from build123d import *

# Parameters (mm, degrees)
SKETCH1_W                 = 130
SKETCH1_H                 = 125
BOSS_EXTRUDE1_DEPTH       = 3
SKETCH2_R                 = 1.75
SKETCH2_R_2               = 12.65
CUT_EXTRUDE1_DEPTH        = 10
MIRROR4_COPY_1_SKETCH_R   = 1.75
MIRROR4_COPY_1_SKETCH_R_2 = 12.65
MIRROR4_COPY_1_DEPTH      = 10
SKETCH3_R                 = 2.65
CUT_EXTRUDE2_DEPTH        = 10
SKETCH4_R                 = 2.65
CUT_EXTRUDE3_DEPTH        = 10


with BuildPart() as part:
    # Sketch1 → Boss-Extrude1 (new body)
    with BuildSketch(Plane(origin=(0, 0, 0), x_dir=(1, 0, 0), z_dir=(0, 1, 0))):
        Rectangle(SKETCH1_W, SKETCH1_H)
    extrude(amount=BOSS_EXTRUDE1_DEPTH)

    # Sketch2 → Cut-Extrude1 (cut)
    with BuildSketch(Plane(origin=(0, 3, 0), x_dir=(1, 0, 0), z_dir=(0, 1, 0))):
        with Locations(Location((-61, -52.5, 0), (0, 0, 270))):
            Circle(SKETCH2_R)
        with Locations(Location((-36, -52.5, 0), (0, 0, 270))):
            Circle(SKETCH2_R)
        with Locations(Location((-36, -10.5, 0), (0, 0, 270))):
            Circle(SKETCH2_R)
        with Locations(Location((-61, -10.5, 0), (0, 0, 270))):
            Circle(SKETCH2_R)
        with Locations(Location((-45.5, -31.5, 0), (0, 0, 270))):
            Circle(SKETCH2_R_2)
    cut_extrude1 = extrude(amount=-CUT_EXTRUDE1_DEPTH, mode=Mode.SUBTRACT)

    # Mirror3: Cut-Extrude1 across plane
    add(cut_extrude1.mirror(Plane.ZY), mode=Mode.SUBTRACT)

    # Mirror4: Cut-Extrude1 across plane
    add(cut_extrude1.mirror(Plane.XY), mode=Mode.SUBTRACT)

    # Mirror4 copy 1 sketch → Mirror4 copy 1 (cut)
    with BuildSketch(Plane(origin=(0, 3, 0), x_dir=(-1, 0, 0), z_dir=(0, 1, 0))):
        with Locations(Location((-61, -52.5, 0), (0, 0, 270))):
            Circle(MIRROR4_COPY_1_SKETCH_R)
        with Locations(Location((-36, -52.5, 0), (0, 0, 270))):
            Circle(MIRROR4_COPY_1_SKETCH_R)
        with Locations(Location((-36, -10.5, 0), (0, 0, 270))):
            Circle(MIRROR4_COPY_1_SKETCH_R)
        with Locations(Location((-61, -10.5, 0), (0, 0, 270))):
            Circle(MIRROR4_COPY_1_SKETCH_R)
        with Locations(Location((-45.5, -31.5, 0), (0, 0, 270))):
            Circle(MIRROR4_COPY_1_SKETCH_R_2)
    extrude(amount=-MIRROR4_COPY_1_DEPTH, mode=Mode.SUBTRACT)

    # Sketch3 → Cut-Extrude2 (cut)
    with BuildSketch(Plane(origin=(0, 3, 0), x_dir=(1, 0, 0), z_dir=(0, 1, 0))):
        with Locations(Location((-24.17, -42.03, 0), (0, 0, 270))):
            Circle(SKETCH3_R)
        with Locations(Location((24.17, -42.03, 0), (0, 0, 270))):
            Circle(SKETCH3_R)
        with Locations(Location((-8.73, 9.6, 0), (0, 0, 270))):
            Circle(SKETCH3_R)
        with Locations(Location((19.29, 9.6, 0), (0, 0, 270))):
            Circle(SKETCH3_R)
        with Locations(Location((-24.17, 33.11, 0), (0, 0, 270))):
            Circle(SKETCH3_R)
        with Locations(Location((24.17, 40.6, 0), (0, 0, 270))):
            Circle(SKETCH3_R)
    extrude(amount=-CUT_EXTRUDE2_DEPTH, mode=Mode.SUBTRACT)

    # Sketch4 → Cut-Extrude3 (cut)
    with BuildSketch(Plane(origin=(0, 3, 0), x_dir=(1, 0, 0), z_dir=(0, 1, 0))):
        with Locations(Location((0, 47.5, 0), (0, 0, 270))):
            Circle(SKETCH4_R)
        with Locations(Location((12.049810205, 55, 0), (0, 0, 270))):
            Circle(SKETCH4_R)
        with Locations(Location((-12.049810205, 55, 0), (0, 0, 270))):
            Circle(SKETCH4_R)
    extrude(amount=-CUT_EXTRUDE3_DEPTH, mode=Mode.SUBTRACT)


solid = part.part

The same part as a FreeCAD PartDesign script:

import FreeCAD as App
import Part
import Sketcher
from FreeCAD import Vector
Q = App.Units.Quantity


def add_polygon(sketch, points):
    """Adds a closed chain of lines whose ends are joined by coincident constraints."""
    first, n = sketch.GeometryCount, len(points)
    for a, b in zip(points, points[1:] + points[:1]):
        sketch.addGeometry(Part.LineSegment(App.Vector(*a, 0), App.Vector(*b, 0)), False)
    for i in range(n):
        sketch.addConstraint(Sketcher.Constraint("Coincident", first + i, 2, first + (i + 1) % n, 1))

doc = App.newDocument("Part")
body = doc.addObject("PartDesign::Body", "Body")

sketch1 = body.newObject("Sketcher::SketchObject", "Sketch")
sketch1.AttachmentSupport = (doc.getObject("XZ_Plane"), [""])
sketch1.MapMode = "FlatFace"
add_polygon(sketch1, [(-65, -62), (-65, 62), (65, 62), (65, -62)])
sketch1.addConstraint([
    Sketcher.Constraint("Vertical", 0),
    Sketcher.Constraint("Horizontal", 1),
    Sketcher.Constraint("Vertical", 2),
    Sketcher.Constraint("Horizontal", 3),
    Sketcher.Constraint("Symmetric", 0, 2, 2, 2, -1, 1),
    Sketcher.Constraint("DistanceX", 1, 1, 1, 2, Q("130 mm")),
    Sketcher.Constraint("DistanceY", 0, 1, 0, 2, Q("125 mm")),
])
pad1 = body.newObject("PartDesign::Pad", "Pad")
pad1.Profile = sketch1
pad1.Length = 3
pad1.Reversed = True

sketch2 = body.newObject("Sketcher::SketchObject", "Sketch001")
sketch2.AttachmentSupport = (doc.getObject("XZ_Plane"), [""])
sketch2.MapMode = "FlatFace"
sketch2.AttachmentOffset = App.Placement(Vector(0, 0, -3), App.Rotation())
sketch2.addGeometry([
    Part.Circle(Vector(-61, 52.5, 0), Vector(0, 0, 1), 1.8),
    Part.Circle(Vector(-36, 52.5, 0), Vector(0, 0, 1), 1.8),
    Part.Circle(Vector(-36, 10.5, 0), Vector(0, 0, 1), 1.8),
    Part.Circle(Vector(-61, 10.5, 0), Vector(0, 0, 1), 1.8),
    Part.Circle(Vector(-45.5, 31.5, 0), Vector(0, 0, 1), 12.7),
], False)
sketch2.addConstraint([
    Sketcher.Constraint("Equal", 0, 1),
    Sketcher.Constraint("Equal", 1, 2),
    Sketcher.Constraint("Equal", 2, 3),
    Sketcher.Constraint("Horizontal", 0, 3, 1, 3),
    Sketcher.Constraint("Horizontal", 2, 3, 3, 3),
    Sketcher.Constraint("Vertical", 1, 3, 2, 3),
    Sketcher.Constraint("Vertical", 0, 3, 3, 3),
    Sketcher.Constraint("Diameter", 0, Q("3.5 mm")),
    Sketcher.Constraint("Diameter", 4, Q("25.3 mm")),
    Sketcher.Constraint("DistanceX", 0, 3, -1, 1, Q("61 mm")),
    Sketcher.Constraint("DistanceX", 1, 3, -1, 1, Q("36 mm")),
    Sketcher.Constraint("DistanceY", 2, 3, 1, 3, Q("42 mm")),
    Sketcher.Constraint("DistanceY", 4, 3, 1, 3, Q("21 mm")),
    Sketcher.Constraint("DistanceY", -1, 1, 0, 3, Q("52.5 mm")),
    Sketcher.Constraint("DistanceX", 4, 3, -1, 1, Q("45.5 mm")),
])
pocket1 = body.newObject("PartDesign::Pocket", "Pocket")
pocket1.Profile = sketch2
pocket1.Length = 10
pocket1.Reversed = True
doc.recompute()

mirrored = body.newObject("PartDesign::Mirrored", "Mirrored")
mirrored.Originals = [pocket1]
mirrored.MirrorPlane = (doc.getObject("YZ_Plane"), [""])
body.Tip = mirrored
doc.recompute()

mirrored2 = body.newObject("PartDesign::Mirrored", "Mirrored001")
mirrored2.Originals = [pocket1]
mirrored2.MirrorPlane = (doc.getObject("XY_Plane"), [""])
body.Tip = mirrored2

sketch3 = body.newObject("Sketcher::SketchObject", "Sketch002")
sketch3.AttachmentSupport = (doc.getObject("XZ_Plane"), [""])
sketch3.MapMode = "FlatFace"
sketch3.AttachmentOffset = App.Placement(Vector(0, 0, -3), App.Rotation())
sketch3.addGeometry([
    Part.Circle(Vector(61, -52.5, 0), Vector(0, 0, 1), 1.8),
    Part.Circle(Vector(36, -52.5, 0), Vector(0, 0, 1), 1.8),
    Part.Circle(Vector(36, -10.5, 0), Vector(0, 0, 1), 1.8),
    Part.Circle(Vector(61, -10.5, 0), Vector(0, 0, 1), 1.8),
    Part.Circle(Vector(45.5, -31.5, 0), Vector(0, 0, 1), 12.7),
], False)
sketch3.addConstraint([
    Sketcher.Constraint("Equal", 0, 1),
    Sketcher.Constraint("Equal", 1, 2),
    Sketcher.Constraint("Equal", 2, 3),
    Sketcher.Constraint("Horizontal", 0, 3, 1, 3),
    Sketcher.Constraint("Horizontal", 2, 3, 3, 3),
    Sketcher.Constraint("Vertical", 1, 3, 2, 3),
    Sketcher.Constraint("Vertical", 0, 3, 3, 3),
    Sketcher.Constraint("Diameter", 0, Q("3.5 mm")),
    Sketcher.Constraint("Diameter", 4, Q("25.3 mm")),
    Sketcher.Constraint("DistanceX", -1, 1, 0, 3, Q("61 mm")),
    Sketcher.Constraint("DistanceX", -1, 1, 1, 3, Q("36 mm")),
    Sketcher.Constraint("DistanceY", 1, 3, 2, 3, Q("42 mm")),
    Sketcher.Constraint("DistanceY", 1, 3, 4, 3, Q("21 mm")),
    Sketcher.Constraint("DistanceY", 0, 3, -1, 1, Q("52.5 mm")),
    Sketcher.Constraint("DistanceX", -1, 1, 4, 3, Q("45.5 mm")),
])
pocket2 = body.newObject("PartDesign::Pocket", "Pocket001")
pocket2.Profile = sketch3
pocket2.Length = 10
pocket2.Reversed = True

sketch4 = body.newObject("Sketcher::SketchObject", "Sketch003")
sketch4.AttachmentSupport = (doc.getObject("XZ_Plane"), [""])
sketch4.MapMode = "FlatFace"
sketch4.AttachmentOffset = App.Placement(Vector(0, 0, -3), App.Rotation())
sketch4.addGeometry([
    Part.Circle(Vector(-24.2, 42, 0), Vector(0, 0, 1), 2.6),
    Part.Circle(Vector(24.2, 42, 0), Vector(0, 0, 1), 2.6),
    Part.Circle(Vector(-8.7, -9.6, 0), Vector(0, 0, 1), 2.6),
    Part.Circle(Vector(19.3, -9.6, 0), Vector(0, 0, 1), 2.6),
    Part.Circle(Vector(-24.2, -33.1, 0), Vector(0, 0, 1), 2.6),
    Part.Circle(Vector(24.2, -40.6, 0), Vector(0, 0, 1), 2.6),
], False)
sketch4.addConstraint([
    Sketcher.Constraint("Equal", 0, 1),
    Sketcher.Constraint("Equal", 1, 2),
    Sketcher.Constraint("Equal", 2, 3),
    Sketcher.Constraint("Equal", 3, 4),
    Sketcher.Constraint("Equal", 4, 5),
    Sketcher.Constraint("Symmetric", 0, 3, 1, 3, -2),
    Sketcher.Constraint("Horizontal", 2, 3, 3, 3),
    Sketcher.Constraint("Vertical", 0, 3, 4, 3),
    Sketcher.Constraint("Vertical", 1, 3, 5, 3),
    Sketcher.Constraint("Diameter", 0, Q("5.3 mm")),
    Sketcher.Constraint("DistanceY", 5, 3, 3, 3, Q("31 mm")),
    Sketcher.Constraint("DistanceY", 2, 3, -1, 1, Q("9.6 mm")),
    Sketcher.Constraint("DistanceX", 2, 3, 1, 3, Q("32.9 mm")),
    Sketcher.Constraint("DistanceX", 0, 3, -1, 1, Q("24.17 mm")),
    Sketcher.Constraint("DistanceY", -1, 1, 0, 3, Q("42.03 mm")),
    Sketcher.Constraint("DistanceX", -1, 1, 3, 3, Q("19.29 mm")),
    Sketcher.Constraint("DistanceY", 4, 3, -1, 1, Q("33.11 mm")),
])
pocket3 = body.newObject("PartDesign::Pocket", "Pocket002")
pocket3.Profile = sketch4
pocket3.Length = 10
pocket3.Reversed = True

sketch5 = body.newObject("Sketcher::SketchObject", "Sketch004")
sketch5.AttachmentSupport = (doc.getObject("XZ_Plane"), [""])
sketch5.MapMode = "FlatFace"
sketch5.AttachmentOffset = App.Placement(Vector(0, 0, -3), App.Rotation())
sketch5.addGeometry([
    Part.Circle(Vector(0, -47.5, 0), Vector(0, 0, 1), 2.6),
    Part.Circle(Vector(12, -55, 0), Vector(0, 0, 1), 2.6),
    Part.Circle(Vector(-12, -55, 0), Vector(0, 0, 1), 2.6),
], False)
sketch5.addConstraint([
    Sketcher.Constraint("Equal", 0, 1),
    Sketcher.Constraint("Equal", 1, 2),
    Sketcher.Constraint("Symmetric", 1, 3, 2, 3, -2),
    Sketcher.Constraint("PointOnObject", 0, 3, -2),
    Sketcher.Constraint("Diameter", 0, Q("5.3 mm")),
    Sketcher.Constraint("DistanceY", 1, 3, -1, 1, Q("55 mm")),
    Sketcher.Constraint("DistanceY", 0, 3, -1, 1, Q("47.5 mm")),
    Sketcher.Constraint("DistanceX", -1, 1, 1, 3, Q("12.04981 mm")),
])
pocket4 = body.newObject("PartDesign::Pocket", "Pocket003")
pocket4.Profile = sketch5
pocket4.Length = 10
pocket4.Reversed = True

doc.recompute()
